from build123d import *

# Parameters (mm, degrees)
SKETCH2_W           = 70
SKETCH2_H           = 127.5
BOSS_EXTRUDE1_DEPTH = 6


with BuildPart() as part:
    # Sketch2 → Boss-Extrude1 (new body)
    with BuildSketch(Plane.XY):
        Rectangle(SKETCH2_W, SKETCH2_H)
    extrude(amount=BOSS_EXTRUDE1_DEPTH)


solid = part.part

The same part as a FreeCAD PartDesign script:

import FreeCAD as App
import Part
import Sketcher

V = App.Vector


def add_polygon(sketch, points):
    """Adds a closed chain of lines whose ends are joined by coincident constraints."""
    first, n = sketch.GeometryCount, len(points)
    for a, b in zip(points, points[1:] + points[:1]):
        sketch.addGeometry(Part.LineSegment(App.Vector(*a, 0), App.Vector(*b, 0)), False)
    for i in range(n):
        sketch.addConstraint(Sketcher.Constraint("Coincident", first + i, 2, first + (i + 1) % n, 1))

doc = App.newDocument("Part")
body = doc.addObject("PartDesign::Body", "Body")

# Sketch on XY plane
sketch1 = doc.addObject("Sketcher::SketchObject", "Sketch")
body.addObject(sketch1)
sketch1.AttachmentSupport = (doc.XY_Plane, [""])
sketch1.MapMode = "FlatFace"
add_polygon(sketch1, [(-35, 63.75), (-35, -63.75), (35, -63.75), (35, 63.75)])  # lines 0-3
sketch1.addConstraint([
    Sketcher.Constraint("Vertical", 0),
    Sketcher.Constraint("Horizontal", 1),
    Sketcher.Constraint("Vertical", 2),
    Sketcher.Constraint("Horizontal", 3),
    Sketcher.Constraint("Symmetric", 0, 2, 2, 2, -1, 1),
    Sketcher.Constraint("DistanceX", 1, 1, 1, 2, 70.0),
    Sketcher.Constraint("DistanceY", 0, 2, 0, 1, 127.5),
])
pad1 = doc.addObject("PartDesign::Pad", "Pad")
body.addObject(pad1)
pad1.Profile = sketch1
pad1.Length = 6

doc.recompute()
